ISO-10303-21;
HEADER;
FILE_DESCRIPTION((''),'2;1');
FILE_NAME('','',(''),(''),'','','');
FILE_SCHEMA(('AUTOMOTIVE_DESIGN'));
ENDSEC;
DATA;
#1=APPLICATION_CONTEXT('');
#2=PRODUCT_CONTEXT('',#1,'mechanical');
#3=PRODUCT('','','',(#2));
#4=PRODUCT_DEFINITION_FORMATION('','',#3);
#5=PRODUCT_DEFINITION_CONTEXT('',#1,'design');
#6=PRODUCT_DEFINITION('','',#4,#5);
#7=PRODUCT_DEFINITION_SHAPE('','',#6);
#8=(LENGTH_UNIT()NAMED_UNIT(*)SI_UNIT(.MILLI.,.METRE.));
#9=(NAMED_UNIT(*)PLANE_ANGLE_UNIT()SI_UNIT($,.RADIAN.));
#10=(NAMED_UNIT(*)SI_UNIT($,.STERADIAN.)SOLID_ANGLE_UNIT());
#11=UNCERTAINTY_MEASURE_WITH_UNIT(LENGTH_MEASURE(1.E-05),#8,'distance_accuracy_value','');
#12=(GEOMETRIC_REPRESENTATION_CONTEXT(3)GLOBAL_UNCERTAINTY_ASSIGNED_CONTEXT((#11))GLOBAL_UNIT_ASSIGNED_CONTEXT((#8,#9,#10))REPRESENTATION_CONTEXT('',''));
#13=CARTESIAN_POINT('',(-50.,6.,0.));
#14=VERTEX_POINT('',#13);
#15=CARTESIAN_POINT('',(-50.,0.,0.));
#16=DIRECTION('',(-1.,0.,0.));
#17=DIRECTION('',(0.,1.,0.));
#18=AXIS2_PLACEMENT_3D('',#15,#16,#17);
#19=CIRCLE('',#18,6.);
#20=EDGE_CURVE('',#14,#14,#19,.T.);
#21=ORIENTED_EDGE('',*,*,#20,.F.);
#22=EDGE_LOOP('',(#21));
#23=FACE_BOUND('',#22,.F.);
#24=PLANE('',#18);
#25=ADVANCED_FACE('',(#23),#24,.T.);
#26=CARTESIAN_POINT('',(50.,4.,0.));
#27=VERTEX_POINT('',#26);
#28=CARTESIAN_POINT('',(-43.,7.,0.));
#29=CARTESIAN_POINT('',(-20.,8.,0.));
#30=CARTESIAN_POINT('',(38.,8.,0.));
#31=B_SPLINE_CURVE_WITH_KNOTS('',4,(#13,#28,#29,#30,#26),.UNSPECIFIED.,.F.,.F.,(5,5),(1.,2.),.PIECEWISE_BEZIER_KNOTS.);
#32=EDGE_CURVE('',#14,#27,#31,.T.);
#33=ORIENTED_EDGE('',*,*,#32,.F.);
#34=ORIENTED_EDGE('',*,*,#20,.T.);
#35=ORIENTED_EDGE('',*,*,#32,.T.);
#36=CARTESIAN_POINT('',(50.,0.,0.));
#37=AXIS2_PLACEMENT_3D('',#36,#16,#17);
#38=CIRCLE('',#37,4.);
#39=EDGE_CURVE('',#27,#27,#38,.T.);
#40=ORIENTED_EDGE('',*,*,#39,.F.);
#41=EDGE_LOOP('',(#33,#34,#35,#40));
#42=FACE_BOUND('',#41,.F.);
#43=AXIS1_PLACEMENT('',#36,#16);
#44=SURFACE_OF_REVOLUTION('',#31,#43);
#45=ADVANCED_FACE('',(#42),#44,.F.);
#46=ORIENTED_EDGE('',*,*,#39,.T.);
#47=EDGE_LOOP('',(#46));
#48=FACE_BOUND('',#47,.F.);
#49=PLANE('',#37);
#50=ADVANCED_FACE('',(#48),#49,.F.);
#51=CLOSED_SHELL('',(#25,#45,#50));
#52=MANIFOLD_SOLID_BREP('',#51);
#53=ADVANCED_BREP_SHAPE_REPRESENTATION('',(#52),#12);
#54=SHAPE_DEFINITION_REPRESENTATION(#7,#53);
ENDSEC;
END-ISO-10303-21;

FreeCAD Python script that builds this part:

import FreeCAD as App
import Part
import Sketcher

V = App.Vector

doc = App.newDocument("Part")
body = doc.addObject("PartDesign::Body", "Body")

sketch1 = body.newObject("Sketcher::SketchObject", "Sketch")
sketch1.AttachmentSupport = (doc.getObject("XY_Plane"), [""])
sketch1.MapMode = "FlatFace"
sketch1.addGeometry(Part.LineSegment(V(50, 0, 0), V(50, 4, 0)), False)
sketch1.addGeometry(Part.BSplineCurve([V(-50, 6, 0), V(-43, 7, 0), V(-20, 8, 0), V(38, 8, 0), V(50, 4, 0)], [5, 5], [1, 2], False, 4, [1, 1, 1, 1, 1], False), False)
sketch1.addGeometry(Part.LineSegment(V(-50, 6, 0), V(-50, 0, 0)), False)
sketch1.addGeometry(Part.LineSegment(V(-50, 0, 0), V(50, 0, 0)), False)
sketch1.addConstraint(Sketcher.Constraint("Block", 1))
sketch1.addConstraint(Sketcher.Constraint("Coincident", 0, 2, 1, 2))
sketch1.addConstraint(Sketcher.Constraint("Coincident", 1, 1, 2, 1))
sketch1.addConstraint(Sketcher.Constraint("Coincident", 2, 2, 3, 1))
sketch1.addConstraint(Sketcher.Constraint("Coincident", 3, 2, 0, 1))
sketch1.addConstraint(Sketcher.Constraint("Vertical", 0))
sketch1.addConstraint(Sketcher.Constraint("Vertical", 2))
sketch1.addConstraint(Sketcher.Constraint("Horizontal", 3))
sketch1.addConstraint(Sketcher.Constraint("PointOnObject", 2, 2, -1))
revolution = body.newObject("PartDesign::Revolution", "Revolution")
revolution.Profile = sketch1
revolution.ReferenceAxis = (sketch1, ["H_Axis"])
revolution.Angle = 360

doc.recompute()
